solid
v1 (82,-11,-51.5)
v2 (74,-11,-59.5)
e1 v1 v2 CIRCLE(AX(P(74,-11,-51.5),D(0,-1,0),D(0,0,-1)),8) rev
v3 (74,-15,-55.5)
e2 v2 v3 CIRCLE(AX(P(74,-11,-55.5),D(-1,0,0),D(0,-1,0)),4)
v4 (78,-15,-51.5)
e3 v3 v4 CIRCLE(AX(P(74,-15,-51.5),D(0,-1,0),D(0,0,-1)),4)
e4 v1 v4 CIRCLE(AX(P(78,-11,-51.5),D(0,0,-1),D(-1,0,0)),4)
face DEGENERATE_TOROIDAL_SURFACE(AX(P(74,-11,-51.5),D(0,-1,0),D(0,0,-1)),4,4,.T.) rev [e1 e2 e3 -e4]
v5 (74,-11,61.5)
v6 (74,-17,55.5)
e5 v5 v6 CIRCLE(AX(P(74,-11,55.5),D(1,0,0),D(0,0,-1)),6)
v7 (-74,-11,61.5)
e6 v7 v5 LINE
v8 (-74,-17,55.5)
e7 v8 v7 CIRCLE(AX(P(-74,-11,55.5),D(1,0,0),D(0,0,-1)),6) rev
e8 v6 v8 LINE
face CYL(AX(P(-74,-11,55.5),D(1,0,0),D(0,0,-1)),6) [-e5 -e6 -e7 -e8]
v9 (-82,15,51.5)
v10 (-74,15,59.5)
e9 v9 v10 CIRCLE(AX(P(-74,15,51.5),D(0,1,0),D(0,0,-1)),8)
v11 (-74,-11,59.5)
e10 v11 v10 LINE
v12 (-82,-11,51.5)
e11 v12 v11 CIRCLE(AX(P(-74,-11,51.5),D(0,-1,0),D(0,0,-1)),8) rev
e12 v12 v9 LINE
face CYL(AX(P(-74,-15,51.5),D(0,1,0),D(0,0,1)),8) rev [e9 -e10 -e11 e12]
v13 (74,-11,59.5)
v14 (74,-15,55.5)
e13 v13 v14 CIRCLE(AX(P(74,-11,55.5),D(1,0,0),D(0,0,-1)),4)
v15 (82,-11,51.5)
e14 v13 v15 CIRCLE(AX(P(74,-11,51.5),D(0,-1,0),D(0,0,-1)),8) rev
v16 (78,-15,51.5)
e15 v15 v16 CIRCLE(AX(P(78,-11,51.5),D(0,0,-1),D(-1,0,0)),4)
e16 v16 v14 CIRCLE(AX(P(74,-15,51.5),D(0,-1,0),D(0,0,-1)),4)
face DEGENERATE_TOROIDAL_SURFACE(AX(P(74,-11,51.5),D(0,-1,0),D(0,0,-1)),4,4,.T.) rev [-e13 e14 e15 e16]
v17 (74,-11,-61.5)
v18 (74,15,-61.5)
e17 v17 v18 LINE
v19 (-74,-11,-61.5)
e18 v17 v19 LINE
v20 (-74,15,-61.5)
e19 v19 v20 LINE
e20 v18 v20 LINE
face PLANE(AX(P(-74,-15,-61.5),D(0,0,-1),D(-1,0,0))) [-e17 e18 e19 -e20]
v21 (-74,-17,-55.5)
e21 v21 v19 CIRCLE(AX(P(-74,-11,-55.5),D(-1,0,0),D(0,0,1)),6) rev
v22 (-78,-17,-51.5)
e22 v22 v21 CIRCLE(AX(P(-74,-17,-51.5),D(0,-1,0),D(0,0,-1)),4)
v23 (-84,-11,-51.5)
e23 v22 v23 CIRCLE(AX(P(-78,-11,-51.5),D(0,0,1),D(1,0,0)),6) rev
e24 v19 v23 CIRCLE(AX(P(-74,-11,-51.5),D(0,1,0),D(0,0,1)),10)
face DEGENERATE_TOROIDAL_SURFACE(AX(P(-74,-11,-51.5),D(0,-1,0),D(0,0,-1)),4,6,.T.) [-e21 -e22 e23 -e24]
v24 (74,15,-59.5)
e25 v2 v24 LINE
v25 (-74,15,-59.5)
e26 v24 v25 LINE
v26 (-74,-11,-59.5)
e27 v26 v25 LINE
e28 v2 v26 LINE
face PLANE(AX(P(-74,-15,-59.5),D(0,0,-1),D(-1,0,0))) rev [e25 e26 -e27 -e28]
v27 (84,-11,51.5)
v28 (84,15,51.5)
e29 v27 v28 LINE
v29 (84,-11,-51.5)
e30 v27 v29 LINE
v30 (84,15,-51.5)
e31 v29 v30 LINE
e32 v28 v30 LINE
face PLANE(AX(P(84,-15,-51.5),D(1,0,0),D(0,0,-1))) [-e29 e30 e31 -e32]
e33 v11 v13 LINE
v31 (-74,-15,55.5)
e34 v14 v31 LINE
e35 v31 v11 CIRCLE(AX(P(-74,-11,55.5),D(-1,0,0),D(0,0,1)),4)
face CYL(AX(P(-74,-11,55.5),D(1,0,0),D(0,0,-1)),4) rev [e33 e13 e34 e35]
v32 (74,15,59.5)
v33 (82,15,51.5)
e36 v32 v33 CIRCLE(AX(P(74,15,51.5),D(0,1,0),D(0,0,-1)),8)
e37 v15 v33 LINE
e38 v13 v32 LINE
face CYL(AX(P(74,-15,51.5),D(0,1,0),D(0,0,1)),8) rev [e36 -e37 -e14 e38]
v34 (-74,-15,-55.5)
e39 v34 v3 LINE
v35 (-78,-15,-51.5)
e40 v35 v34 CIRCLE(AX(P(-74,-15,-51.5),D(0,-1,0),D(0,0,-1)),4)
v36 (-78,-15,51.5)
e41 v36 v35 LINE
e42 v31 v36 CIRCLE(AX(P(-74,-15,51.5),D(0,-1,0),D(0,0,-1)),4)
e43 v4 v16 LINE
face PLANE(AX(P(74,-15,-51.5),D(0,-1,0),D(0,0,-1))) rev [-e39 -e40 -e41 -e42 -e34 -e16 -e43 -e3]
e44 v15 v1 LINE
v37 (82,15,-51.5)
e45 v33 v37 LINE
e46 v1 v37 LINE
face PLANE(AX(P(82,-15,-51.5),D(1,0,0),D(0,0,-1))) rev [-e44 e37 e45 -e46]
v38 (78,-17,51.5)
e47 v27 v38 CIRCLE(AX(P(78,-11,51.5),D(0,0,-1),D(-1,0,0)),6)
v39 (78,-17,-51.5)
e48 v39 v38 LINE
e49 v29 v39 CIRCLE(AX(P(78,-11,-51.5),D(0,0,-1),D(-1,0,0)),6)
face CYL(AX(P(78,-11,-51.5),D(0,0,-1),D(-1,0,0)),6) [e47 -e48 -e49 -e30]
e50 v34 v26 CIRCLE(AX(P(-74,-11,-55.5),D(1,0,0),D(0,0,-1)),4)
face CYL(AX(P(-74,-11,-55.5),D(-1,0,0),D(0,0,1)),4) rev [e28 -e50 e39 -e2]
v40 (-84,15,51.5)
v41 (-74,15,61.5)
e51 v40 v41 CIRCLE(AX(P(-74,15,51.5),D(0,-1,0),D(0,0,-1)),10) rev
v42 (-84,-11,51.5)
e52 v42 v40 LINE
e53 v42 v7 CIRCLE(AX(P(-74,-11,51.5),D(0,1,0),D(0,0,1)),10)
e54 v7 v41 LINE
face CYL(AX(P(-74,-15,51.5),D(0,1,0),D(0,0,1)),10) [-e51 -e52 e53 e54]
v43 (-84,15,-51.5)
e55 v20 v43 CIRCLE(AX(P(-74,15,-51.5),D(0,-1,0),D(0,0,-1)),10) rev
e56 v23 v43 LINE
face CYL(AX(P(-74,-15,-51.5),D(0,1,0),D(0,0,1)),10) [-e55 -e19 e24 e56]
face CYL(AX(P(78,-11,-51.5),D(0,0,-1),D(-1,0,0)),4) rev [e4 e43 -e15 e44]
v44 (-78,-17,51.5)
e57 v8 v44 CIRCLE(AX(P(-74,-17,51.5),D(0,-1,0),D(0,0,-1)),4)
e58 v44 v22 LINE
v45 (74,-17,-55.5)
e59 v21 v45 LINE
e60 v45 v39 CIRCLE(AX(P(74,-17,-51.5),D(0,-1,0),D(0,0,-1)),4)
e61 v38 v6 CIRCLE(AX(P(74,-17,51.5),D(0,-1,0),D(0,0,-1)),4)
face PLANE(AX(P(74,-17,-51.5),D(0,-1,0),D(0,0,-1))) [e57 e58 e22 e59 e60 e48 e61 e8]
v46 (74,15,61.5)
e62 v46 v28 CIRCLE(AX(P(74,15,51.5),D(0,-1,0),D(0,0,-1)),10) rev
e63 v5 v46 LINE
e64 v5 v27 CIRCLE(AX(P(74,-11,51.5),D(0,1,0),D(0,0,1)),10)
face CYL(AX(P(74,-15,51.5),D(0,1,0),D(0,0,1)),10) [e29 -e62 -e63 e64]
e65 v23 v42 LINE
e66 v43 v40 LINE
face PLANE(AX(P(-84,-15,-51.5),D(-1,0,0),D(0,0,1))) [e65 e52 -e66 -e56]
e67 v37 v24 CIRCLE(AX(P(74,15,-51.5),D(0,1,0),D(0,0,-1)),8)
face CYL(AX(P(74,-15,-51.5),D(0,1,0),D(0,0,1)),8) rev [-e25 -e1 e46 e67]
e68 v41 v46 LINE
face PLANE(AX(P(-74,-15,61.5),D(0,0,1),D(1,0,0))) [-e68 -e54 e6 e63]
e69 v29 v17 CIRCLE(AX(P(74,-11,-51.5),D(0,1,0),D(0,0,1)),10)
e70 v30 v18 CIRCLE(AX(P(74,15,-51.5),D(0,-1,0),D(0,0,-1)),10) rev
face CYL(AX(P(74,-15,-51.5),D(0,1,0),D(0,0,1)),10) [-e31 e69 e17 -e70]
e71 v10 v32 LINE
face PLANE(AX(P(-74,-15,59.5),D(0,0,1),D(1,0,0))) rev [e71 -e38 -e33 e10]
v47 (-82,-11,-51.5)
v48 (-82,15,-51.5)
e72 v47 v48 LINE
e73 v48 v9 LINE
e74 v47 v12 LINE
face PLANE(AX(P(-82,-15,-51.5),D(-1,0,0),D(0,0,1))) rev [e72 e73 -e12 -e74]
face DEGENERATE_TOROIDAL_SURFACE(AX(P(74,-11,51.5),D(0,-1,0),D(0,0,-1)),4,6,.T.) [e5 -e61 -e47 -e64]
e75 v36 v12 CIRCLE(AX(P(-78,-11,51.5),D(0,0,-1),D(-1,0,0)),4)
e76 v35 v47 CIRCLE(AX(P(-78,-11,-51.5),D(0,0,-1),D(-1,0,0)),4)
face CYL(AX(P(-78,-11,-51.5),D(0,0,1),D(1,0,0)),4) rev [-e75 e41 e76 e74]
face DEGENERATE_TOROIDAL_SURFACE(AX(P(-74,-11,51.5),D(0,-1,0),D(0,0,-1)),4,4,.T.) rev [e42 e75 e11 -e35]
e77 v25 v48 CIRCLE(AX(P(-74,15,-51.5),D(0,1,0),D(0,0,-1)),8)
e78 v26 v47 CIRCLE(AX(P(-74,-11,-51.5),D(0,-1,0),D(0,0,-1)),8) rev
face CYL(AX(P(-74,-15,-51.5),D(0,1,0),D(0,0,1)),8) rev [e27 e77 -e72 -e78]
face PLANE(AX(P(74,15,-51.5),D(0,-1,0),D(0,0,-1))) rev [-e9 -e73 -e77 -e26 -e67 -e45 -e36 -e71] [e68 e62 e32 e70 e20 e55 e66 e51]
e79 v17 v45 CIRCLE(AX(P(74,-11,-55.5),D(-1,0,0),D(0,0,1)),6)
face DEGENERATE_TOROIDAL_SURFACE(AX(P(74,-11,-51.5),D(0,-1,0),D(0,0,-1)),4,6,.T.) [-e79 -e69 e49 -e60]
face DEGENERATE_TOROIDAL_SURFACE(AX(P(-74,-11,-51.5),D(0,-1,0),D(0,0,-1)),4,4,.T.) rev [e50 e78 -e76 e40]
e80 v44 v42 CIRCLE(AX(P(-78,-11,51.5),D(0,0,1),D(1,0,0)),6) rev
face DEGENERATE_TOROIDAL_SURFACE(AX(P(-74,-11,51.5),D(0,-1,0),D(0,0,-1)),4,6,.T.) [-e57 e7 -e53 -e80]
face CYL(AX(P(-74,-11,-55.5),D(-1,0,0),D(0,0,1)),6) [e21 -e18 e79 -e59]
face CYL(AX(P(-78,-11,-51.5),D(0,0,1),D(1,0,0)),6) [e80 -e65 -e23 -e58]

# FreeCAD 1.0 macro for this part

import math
import FreeCAD as App
import Part
import Sketcher


def edges_at(feature, points):
    """Names of the edges that pass closest to the given points."""
    edges = feature.Shape.Edges
    near = lambda p: min(range(len(edges)), key=lambda i: edges[i].distToShape(Part.Vertex(*p))[0])
    return sorted({f"Edge{near(p) + 1}" for p in points})


def faces_at(feature, points):
    """Names of the faces that lie closest to the given points."""
    faces = feature.Shape.Faces
    near = lambda p: min(range(len(faces)), key=lambda i: faces[i].distToShape(Part.Vertex(*p))[0])
    return sorted({f"Face{near(p) + 1}" for p in points})

doc = App.newDocument("Part")
body = doc.addObject("PartDesign::Body", "Body")

# Sketch on XZ plane
sketch1 = body.newObject("Sketcher::SketchObject", "Sketch")
sketch1.AttachmentSupport = (doc.getObject("XZ_Plane"), [""])
sketch1.MapMode = "FlatFace"
sketch1.addGeometry([
    Part.LineSegment(App.Vector(74, -60, 0), App.Vector(-74, -60, 0)),  # 0
    Part.ArcOfCircle(Part.Circle(App.Vector(-74, -51, 0), App.Vector(0, 0, 1), 8), math.radians(-180), math.radians(-90)),  # 1
    Part.LineSegment(App.Vector(-82, -52, 0), App.Vector(-82, 52, 0)),  # 2
    Part.ArcOfCircle(Part.Circle(App.Vector(-74, 51, 0), App.Vector(0, 0, 1), 8), math.radians(90), math.radians(180)),  # 3
    Part.LineSegment(App.Vector(-74, 60, 0), App.Vector(74, 60, 0)),  # 4
    Part.ArcOfCircle(Part.Circle(App.Vector(74, 51, 0), App.Vector(0, 0, 1), 8), math.radians(0), math.radians(90)),  # 5
    Part.LineSegment(App.Vector(82, 52, 0), App.Vector(82, -52, 0)),  # 6
    Part.ArcOfCircle(Part.Circle(App.Vector(74, -51, 0), App.Vector(0, 0, 1), 8), math.radians(-90), math.radians(0)),  # 7
], False)
sketch1.addConstraint([
    Sketcher.Constraint("Tangent", 0, 2, 1, 2),
    Sketcher.Constraint("Tangent", 1, 1, 2, 1),
    Sketcher.Constraint("Tangent", 2, 2, 3, 2),
    Sketcher.Constraint("Tangent", 3, 1, 4, 1),
    Sketcher.Constraint("Tangent", 4, 2, 5, 2),
    Sketcher.Constraint("Tangent", 5, 1, 6, 1),
    Sketcher.Constraint("Tangent", 6, 2, 7, 2),
    Sketcher.Constraint("Tangent", 7, 1, 0, 1),
    Sketcher.Constraint("Horizontal", 0),
    Sketcher.Constraint("Vertical", 2),
    Sketcher.Constraint("Horizontal", 4),
    Sketcher.Constraint("Vertical", 6),
    Sketcher.Constraint("Equal", 1, 3),
    Sketcher.Constraint("Equal", 3, 5),
    Sketcher.Constraint("Equal", 5, 7),
    Sketcher.Constraint("Symmetric", 1, 3, 5, 3, -1, 1),
    Sketcher.Constraint("Radius", 1, 8.0),
    Sketcher.Constraint("DistanceX", 0, 2, 0, 1, 148.0),
    Sketcher.Constraint("DistanceY", 2, 1, 2, 2, 103.0),
])
pad1 = body.newObject("PartDesign::Pad", "Pad")
pad1.Profile = sketch1
pad1.Length = 30
pad1.Midplane = True
doc.recompute()

fillet = body.newObject("PartDesign::Fillet", "Fillet")
fillet.Base = (pad1, edges_at(pad1, [
    (-79.657, -15, -57.157),
    (-82, -15, 0),
    (-79.657, -15, 57.157),
    (0, -15, 59.5),
    (79.657, -15, 57.157),
    (82, -15, 0),
    (79.657, -15, -57.157),
    (0, -15, -59.5),
]))
fillet.Radius = 4
doc.recompute()

thickness = body.newObject("PartDesign::Thickness", "Thickness")
thickness.Base = (fillet, faces_at(fillet, [(0, 15, 0)]))
thickness.Value = 2
thickness.Reversed = False
thickness.Join = "Intersection"

doc.recompute()
